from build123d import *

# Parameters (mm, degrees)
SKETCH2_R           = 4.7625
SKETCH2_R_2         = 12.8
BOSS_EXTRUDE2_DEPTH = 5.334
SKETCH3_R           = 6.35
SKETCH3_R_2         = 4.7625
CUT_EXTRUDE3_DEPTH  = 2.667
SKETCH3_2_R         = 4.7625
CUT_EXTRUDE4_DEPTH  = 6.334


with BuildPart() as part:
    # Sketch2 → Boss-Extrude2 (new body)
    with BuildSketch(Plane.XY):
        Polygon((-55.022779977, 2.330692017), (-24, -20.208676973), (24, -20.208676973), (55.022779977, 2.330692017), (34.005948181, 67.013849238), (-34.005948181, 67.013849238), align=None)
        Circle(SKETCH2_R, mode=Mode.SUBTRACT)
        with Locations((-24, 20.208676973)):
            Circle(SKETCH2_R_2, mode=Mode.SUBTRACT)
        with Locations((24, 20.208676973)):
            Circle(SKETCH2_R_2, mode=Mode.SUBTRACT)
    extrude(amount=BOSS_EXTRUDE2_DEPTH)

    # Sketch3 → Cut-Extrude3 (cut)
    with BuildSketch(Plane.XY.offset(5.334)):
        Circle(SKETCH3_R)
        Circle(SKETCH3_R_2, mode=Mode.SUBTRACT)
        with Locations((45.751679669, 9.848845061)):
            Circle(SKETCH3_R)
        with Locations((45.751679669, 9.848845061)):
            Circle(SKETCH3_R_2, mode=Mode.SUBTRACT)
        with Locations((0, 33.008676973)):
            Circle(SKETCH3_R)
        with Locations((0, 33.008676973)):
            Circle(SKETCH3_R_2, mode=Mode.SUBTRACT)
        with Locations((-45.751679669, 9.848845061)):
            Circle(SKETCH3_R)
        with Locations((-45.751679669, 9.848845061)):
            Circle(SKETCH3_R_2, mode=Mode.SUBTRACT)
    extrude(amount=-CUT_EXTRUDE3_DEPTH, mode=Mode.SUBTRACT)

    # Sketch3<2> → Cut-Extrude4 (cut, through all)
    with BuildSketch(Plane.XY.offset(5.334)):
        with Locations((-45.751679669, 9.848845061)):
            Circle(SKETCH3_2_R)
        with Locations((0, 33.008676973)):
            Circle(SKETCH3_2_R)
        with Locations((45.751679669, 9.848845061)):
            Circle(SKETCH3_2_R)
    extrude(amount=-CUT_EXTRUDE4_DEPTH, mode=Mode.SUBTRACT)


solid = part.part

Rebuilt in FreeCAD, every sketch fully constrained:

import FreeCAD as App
import Part
import Sketcher

V = App.Vector
Q = App.Units.Quantity

doc = App.newDocument("Part")
body = doc.addObject("PartDesign::Body", "Body")

sketch1 = body.newObject("Sketcher::SketchObject", "Sketch")
sketch1.AttachmentSupport = (doc.getObject("XY_Plane"), [""])
sketch1.MapMode = "FlatFace"
sketch1.addGeometry([
    Part.LineSegment(V(-55, 2.3, 0), V(-24, -20.2, 0)),
    Part.LineSegment(V(-24, -20.2, 0), V(24, -20.2, 0)),
    Part.LineSegment(V(24, -20.2, 0), V(55, 2.3, 0)),
    Part.LineSegment(V(55, 2.3, 0), V(34, 67, 0)),
    Part.LineSegment(V(34, 67, 0), V(-34, 67, 0)),
    Part.LineSegment(V(-34, 67, 0), V(-55, 2.3, 0)),
    Part.Circle(V(0, 0, 0), V(0, 0, 1), 4.8),
    Part.Circle(V(-24, 20.2, 0), V(0, 0, 1), 12.8),
    Part.Circle(V(24, 20.2, 0), V(0, 0, 1), 12.8),
], False)
sketch1.addConstraint([
    Sketcher.Constraint("Coincident", 0, 2, 1, 1),
    Sketcher.Constraint("Coincident", 1, 2, 2, 1),
    Sketcher.Constraint("Coincident", 2, 2, 3, 1),
    Sketcher.Constraint("Coincident", 3, 2, 4, 1),
    Sketcher.Constraint("Coincident", 4, 2, 5, 1),
    Sketcher.Constraint("Coincident", 5, 2, 0, 1),
    Sketcher.Constraint("Horizontal", 1),
    Sketcher.Constraint("Horizontal", 4),
    Sketcher.Constraint("Coincident", 6, 3, -1, 1),
    Sketcher.Constraint("Equal", 7, 8),
    Sketcher.Constraint("Symmetric", 7, 3, 8, 3, -2),
    Sketcher.Constraint("Symmetric", 2, 2, 5, 2, -2),
    Sketcher.Constraint("Vertical", 7, 3, 0, 2),
    Sketcher.Constraint("Vertical", 8, 3, 1, 2),
    Sketcher.Constraint("Equal", 3, 5),
    Sketcher.Constraint("Diameter", 6, Q("0.375 in")),
    Sketcher.Constraint("Angle", 0, Q("-36 deg")),
    Sketcher.Constraint("Angle", 3, Q("108 deg")),
    Sketcher.Constraint("Diameter", 7, Q("25.6 mm")),
    Sketcher.Constraint("DistanceX", 1, 1, 1, 2, Q("48 mm")),
    Sketcher.Constraint("DistanceX", 4, 2, 4, 1, Q("68.011896 mm")),
    Sketcher.Constraint("DistanceX", -1, 1, 2, 2, Q("55.02278 mm")),
    Sketcher.Constraint("DistanceY", -1, 1, 3, 2, Q("67.013849 mm")),
    Sketcher.Constraint("DistanceY", -1, 1, 7, 3, Q("20.208677 mm")),
])
pad1 = body.newObject("PartDesign::Pad", "Pad")
pad1.Profile = sketch1
pad1.Length = Q("0.21 in")

sketch2 = body.newObject("Sketcher::SketchObject", "Sketch001")
sketch2.AttachmentSupport = (doc.getObject("XY_Plane"), [""])
sketch2.MapMode = "FlatFace"
sketch2.AttachmentOffset = App.Placement(V(0, 0, 0.21 * 25.4), App.Rotation())
sketch2.addGeometry([
    Part.Circle(V(0, 0, 0), V(0, 0, 1), 6.3),
    Part.Circle(V(0, 0, 0), V(0, 0, 1), 4.8),
    Part.Circle(V(45.8, 9.8, 0), V(0, 0, 1), 6.3),
    Part.Circle(V(45.8, 9.8, 0), V(0, 0, 1), 4.8),
    Part.Circle(V(0, 33, 0), V(0, 0, 1), 6.3),
    Part.Circle(V(0, 33, 0), V(0, 0, 1), 4.8),
    Part.Circle(V(-45.8, 9.8, 0), V(0, 0, 1), 6.3),
    Part.Circle(V(-45.8, 9.8, 0), V(0, 0, 1), 4.8),
], False)
sketch2.addConstraint([
    Sketcher.Constraint("Coincident", 0, 3, -1, 1),
    Sketcher.Constraint("Coincident", 1, 3, -1, 1),
    Sketcher.Constraint("Coincident", 3, 3, 2, 3),
    Sketcher.Constraint("Coincident", 5, 3, 4, 3),
    Sketcher.Constraint("Coincident", 7, 3, 6, 3),
    Sketcher.Constraint("Equal", 0, 2),
    Sketcher.Constraint("Equal", 1, 3),
    Sketcher.Constraint("Equal", 2, 4),
    Sketcher.Constraint("Equal", 3, 5),
    Sketcher.Constraint("Equal", 4, 6),
    Sketcher.Constraint("Equal", 5, 7),
    Sketcher.Constraint("Symmetric", 2, 3, 6, 3, -2),
    Sketcher.Constraint("PointOnObject", 4, 3, -2),
    Sketcher.Constraint("Diameter", 0, Q("0.5 in")),
    Sketcher.Constraint("Diameter", 1, Q("0.375 in")),
    Sketcher.Constraint("DistanceX", -1, 1, 2, 3, Q("45.75168 mm")),
    Sketcher.Constraint("DistanceY", 2, 3, 4, 3, Q("23.159832 mm")),
    Sketcher.Constraint("DistanceY", -1, 1, 2, 3, Q("9.848845 mm")),
])
pocket1 = body.newObject("PartDesign::Pocket", "Pocket")
pocket1.Profile = sketch2
pocket1.Length = Q("0.105 in")

sketch3 = body.newObject("Sketcher::SketchObject", "Sketch002")
sketch3.AttachmentSupport = (doc.getObject("XY_Plane"), [""])
sketch3.MapMode = "FlatFace"
sketch3.AttachmentOffset = App.Placement(V(0, 0, 0.21 * 25.4), App.Rotation())
sketch3.addGeometry([
    Part.Circle(V(-45.8, 9.8, 0), V(0, 0, 1), 4.8),
    Part.Circle(V(0, 33, 0), V(0, 0, 1), 4.8),
    Part.Circle(V(45.8, 9.8, 0), V(0, 0, 1), 4.8),
], False)
sketch3.addConstraint([
    Sketcher.Constraint("Equal", 0, 1),
    Sketcher.Constraint("Equal", 1, 2),
    Sketcher.Constraint("Symmetric", 0, 3, 2, 3, -2),
    Sketcher.Constraint("PointOnObject", 1, 3, -2),
    Sketcher.Constraint("Diameter", 0, Q("0.375 in")),
    Sketcher.Constraint("DistanceX", 0, 3, -1, 1, Q("45.75168 mm")),
    Sketcher.Constraint("DistanceY", 0, 3, 1, 3, Q("23.159832 mm")),
    Sketcher.Constraint("DistanceY", -1, 1, 0, 3, Q("9.848845 mm")),
])
pocket2 = body.newObject("PartDesign::Pocket", "Pocket001")
pocket2.Profile = sketch3
pocket2.Type = "ThroughAll"

doc.recompute()
